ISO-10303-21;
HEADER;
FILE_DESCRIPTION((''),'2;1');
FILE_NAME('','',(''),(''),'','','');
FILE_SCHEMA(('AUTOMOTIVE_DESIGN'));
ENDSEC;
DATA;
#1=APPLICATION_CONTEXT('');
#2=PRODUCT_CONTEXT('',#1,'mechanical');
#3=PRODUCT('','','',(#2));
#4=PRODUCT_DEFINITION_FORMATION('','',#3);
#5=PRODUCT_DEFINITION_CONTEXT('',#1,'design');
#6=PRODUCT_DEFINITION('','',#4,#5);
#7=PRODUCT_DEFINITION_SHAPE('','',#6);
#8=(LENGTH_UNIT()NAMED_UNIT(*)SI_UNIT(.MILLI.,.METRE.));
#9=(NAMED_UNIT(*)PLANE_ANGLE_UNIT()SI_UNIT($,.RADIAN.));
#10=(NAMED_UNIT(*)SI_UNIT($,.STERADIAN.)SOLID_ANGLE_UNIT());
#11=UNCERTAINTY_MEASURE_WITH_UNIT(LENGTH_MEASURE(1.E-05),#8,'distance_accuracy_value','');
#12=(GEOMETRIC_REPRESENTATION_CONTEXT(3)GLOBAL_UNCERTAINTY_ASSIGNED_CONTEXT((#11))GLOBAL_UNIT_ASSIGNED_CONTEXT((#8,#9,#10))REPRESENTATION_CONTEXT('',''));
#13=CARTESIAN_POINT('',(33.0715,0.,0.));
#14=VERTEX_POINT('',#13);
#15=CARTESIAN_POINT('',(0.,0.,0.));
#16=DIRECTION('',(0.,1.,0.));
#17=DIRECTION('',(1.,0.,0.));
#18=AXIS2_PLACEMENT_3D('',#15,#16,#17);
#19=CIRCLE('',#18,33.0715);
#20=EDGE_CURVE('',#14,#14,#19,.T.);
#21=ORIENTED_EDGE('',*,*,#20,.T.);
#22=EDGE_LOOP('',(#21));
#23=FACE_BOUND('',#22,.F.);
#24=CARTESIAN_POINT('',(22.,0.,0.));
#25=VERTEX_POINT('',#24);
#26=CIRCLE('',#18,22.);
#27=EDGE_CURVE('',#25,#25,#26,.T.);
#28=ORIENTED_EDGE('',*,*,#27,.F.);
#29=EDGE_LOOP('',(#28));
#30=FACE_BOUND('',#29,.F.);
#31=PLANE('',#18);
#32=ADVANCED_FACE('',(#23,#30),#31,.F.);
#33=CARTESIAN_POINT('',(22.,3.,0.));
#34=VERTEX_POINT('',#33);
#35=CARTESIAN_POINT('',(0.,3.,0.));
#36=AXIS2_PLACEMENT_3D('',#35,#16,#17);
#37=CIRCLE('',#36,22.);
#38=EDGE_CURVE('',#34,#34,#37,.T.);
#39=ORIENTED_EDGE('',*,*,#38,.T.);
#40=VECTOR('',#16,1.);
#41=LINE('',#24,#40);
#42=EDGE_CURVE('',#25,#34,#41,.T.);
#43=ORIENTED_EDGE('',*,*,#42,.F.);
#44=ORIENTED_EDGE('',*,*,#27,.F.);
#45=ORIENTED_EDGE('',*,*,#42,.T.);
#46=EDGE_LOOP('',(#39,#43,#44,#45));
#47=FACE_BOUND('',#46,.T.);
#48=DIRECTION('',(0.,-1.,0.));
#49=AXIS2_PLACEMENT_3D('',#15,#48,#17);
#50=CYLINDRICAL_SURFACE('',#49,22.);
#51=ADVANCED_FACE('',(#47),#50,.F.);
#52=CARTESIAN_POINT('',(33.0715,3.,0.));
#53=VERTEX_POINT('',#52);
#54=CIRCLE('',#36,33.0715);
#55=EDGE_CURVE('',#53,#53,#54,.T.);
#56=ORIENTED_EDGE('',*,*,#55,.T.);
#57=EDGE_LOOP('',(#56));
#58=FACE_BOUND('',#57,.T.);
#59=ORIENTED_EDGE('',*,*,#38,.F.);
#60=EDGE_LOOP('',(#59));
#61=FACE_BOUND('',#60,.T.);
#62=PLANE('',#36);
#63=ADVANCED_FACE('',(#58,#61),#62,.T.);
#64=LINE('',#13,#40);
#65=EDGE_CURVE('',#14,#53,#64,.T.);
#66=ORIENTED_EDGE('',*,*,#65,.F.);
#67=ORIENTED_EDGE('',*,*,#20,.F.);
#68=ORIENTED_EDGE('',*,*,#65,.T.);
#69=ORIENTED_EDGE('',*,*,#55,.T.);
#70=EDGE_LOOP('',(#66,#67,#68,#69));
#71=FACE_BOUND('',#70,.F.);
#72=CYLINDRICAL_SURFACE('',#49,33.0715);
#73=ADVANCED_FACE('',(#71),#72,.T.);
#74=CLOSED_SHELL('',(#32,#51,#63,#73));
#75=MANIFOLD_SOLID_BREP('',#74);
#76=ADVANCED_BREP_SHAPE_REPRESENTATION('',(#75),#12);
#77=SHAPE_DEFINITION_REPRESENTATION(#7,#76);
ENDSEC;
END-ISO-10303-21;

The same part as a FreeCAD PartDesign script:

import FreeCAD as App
import Part
import Sketcher

doc = App.newDocument("Part")
params = doc.addObject("Spreadsheet::Sheet", "Params")
for row, (alias, value) in enumerate([
    ("sketch1_diameter", "44 mm"),
    ("pad1_length", "3 mm"),
], start=1):
    params.set(f"A{row}", alias)
    params.set(f"B{row}", "=" + value)
    params.setAlias(f"B{row}", alias)

body = doc.addObject("PartDesign::Body", "Body")

# Sketch on XZ plane
sketch1 = body.newObject("Sketcher::SketchObject", "Sketch")
sketch1.AttachmentSupport = (doc.getObject("XZ_Plane"), [""])
sketch1.MapMode = "FlatFace"
sketch1.addGeometry([
    Part.Circle(App.Vector(0, 0, 0), App.Vector(0, 0, 1), 33),
    Part.Circle(App.Vector(0, 0, 0), App.Vector(0, 0, 1), 22),
], False)
sketch1.addConstraint([
    Sketcher.Constraint("Coincident", 0, 3, -1, 1),
    Sketcher.Constraint("Coincident", 1, 3, -1, 1),
    Sketcher.Constraint("Diameter", 1, 44.0),
    Sketcher.Constraint("Diameter", 0, 66.143),
])
sketch1.setExpression("Constraints[2]", "Params.sketch1_diameter")
pad1 = body.newObject("PartDesign::Pad", "Pad")
pad1.Profile = sketch1
pad1.setExpression("Length", "Params.pad1_length")
pad1.Reversed = True

doc.recompute()
